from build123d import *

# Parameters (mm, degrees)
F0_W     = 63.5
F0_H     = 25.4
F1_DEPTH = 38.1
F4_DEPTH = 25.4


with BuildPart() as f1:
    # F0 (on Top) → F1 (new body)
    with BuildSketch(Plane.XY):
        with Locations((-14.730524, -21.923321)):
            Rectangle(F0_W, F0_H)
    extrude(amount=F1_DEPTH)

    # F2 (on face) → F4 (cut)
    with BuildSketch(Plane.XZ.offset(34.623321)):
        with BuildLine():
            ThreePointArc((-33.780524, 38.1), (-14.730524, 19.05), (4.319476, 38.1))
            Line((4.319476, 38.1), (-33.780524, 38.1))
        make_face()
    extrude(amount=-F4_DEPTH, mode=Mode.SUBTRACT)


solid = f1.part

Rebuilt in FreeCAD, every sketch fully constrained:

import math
import FreeCAD as App
import Part
import Sketcher
Q = App.Units.Quantity

doc = App.newDocument("Part")
body = doc.addObject("PartDesign::Body", "Body")

sketch1 = doc.addObject("Sketcher::SketchObject", "Sketch")
body.addObject(sketch1)
sketch1.AttachmentSupport = (doc.XY_Plane, [""])
sketch1.MapMode = "FlatFace"
sketch1.addGeometry([
    Part.LineSegment(App.Vector(-46.480524, -9.223321, 0), App.Vector(-46.480524, -34.623321, 0)),
    Part.LineSegment(App.Vector(-46.480524, -34.623321, 0), App.Vector(17.019476, -34.623321, 0)),
    Part.LineSegment(App.Vector(17.019476, -34.623321, 0), App.Vector(17.019476, -9.223321, 0)),
    Part.LineSegment(App.Vector(17.019476, -9.223321, 0), App.Vector(-46.480524, -9.223321, 0)),
], False)
sketch1.addConstraint([
    Sketcher.Constraint("Coincident", 0, 2, 1, 1),
    Sketcher.Constraint("Coincident", 1, 2, 2, 1),
    Sketcher.Constraint("Coincident", 2, 2, 3, 1),
    Sketcher.Constraint("Coincident", 3, 2, 0, 1),
    Sketcher.Constraint("Vertical", 0),
    Sketcher.Constraint("Horizontal", 1),
    Sketcher.Constraint("Vertical", 2),
    Sketcher.Constraint("Horizontal", 3),
    Sketcher.Constraint("DistanceY", 0, 2, 0, 1, Q("1 in")),
    Sketcher.Constraint("DistanceX", 1, 1, 1, 2, Q("2.5 in")),
    Sketcher.Constraint("DistanceY", 0, 2, -1, 1, Q("34.623321 mm")),
    Sketcher.Constraint("DistanceX", 0, 2, -1, 1, Q("46.480524 mm")),
])
pad1 = doc.addObject("PartDesign::Pad", "Pad")
body.addObject(pad1)
pad1.Profile = sketch1
pad1.Length = Q("1.5 in")

sketch2 = doc.addObject("Sketcher::SketchObject", "Sketch001")
body.addObject(sketch2)
sketch2.AttachmentSupport = (doc.XZ_Plane, [""])
sketch2.MapMode = "FlatFace"
sketch2.AttachmentOffset = App.Placement(App.Vector(0, 0, 34.623321), App.Rotation())
sketch2.addGeometry([
    Part.ArcOfCircle(Part.Circle(App.Vector(-14.730524, 38.1, 0), App.Vector(0, 0, 1), 19.05), math.radians(180), math.radians(360)),
    Part.LineSegment(App.Vector(4.319476, 38.1, 0), App.Vector(-33.780524, 38.1, 0)),
], False)
sketch2.addConstraint([
    Sketcher.Constraint("Coincident", 0, 1, 1, 2),
    Sketcher.Constraint("Coincident", 1, 1, 0, 2),
    Sketcher.Constraint("Horizontal", 1),
    Sketcher.Constraint("Radius", 0, Q("0.75 in")),
    Sketcher.Constraint("DistanceY", -1, 1, 0, 3, Q("1.5 in")),
    Sketcher.Constraint("DistanceY", -1, 1, 0, 1, Q("1.5 in")),
    Sketcher.Constraint("DistanceX", 0, 3, -1, 1, Q("14.730524 mm")),
])
pocket1 = doc.addObject("PartDesign::Pocket", "Pocket")
body.addObject(pocket1)
pocket1.Profile = sketch2
pocket1.Length = Q("1 in")

doc.recompute()
